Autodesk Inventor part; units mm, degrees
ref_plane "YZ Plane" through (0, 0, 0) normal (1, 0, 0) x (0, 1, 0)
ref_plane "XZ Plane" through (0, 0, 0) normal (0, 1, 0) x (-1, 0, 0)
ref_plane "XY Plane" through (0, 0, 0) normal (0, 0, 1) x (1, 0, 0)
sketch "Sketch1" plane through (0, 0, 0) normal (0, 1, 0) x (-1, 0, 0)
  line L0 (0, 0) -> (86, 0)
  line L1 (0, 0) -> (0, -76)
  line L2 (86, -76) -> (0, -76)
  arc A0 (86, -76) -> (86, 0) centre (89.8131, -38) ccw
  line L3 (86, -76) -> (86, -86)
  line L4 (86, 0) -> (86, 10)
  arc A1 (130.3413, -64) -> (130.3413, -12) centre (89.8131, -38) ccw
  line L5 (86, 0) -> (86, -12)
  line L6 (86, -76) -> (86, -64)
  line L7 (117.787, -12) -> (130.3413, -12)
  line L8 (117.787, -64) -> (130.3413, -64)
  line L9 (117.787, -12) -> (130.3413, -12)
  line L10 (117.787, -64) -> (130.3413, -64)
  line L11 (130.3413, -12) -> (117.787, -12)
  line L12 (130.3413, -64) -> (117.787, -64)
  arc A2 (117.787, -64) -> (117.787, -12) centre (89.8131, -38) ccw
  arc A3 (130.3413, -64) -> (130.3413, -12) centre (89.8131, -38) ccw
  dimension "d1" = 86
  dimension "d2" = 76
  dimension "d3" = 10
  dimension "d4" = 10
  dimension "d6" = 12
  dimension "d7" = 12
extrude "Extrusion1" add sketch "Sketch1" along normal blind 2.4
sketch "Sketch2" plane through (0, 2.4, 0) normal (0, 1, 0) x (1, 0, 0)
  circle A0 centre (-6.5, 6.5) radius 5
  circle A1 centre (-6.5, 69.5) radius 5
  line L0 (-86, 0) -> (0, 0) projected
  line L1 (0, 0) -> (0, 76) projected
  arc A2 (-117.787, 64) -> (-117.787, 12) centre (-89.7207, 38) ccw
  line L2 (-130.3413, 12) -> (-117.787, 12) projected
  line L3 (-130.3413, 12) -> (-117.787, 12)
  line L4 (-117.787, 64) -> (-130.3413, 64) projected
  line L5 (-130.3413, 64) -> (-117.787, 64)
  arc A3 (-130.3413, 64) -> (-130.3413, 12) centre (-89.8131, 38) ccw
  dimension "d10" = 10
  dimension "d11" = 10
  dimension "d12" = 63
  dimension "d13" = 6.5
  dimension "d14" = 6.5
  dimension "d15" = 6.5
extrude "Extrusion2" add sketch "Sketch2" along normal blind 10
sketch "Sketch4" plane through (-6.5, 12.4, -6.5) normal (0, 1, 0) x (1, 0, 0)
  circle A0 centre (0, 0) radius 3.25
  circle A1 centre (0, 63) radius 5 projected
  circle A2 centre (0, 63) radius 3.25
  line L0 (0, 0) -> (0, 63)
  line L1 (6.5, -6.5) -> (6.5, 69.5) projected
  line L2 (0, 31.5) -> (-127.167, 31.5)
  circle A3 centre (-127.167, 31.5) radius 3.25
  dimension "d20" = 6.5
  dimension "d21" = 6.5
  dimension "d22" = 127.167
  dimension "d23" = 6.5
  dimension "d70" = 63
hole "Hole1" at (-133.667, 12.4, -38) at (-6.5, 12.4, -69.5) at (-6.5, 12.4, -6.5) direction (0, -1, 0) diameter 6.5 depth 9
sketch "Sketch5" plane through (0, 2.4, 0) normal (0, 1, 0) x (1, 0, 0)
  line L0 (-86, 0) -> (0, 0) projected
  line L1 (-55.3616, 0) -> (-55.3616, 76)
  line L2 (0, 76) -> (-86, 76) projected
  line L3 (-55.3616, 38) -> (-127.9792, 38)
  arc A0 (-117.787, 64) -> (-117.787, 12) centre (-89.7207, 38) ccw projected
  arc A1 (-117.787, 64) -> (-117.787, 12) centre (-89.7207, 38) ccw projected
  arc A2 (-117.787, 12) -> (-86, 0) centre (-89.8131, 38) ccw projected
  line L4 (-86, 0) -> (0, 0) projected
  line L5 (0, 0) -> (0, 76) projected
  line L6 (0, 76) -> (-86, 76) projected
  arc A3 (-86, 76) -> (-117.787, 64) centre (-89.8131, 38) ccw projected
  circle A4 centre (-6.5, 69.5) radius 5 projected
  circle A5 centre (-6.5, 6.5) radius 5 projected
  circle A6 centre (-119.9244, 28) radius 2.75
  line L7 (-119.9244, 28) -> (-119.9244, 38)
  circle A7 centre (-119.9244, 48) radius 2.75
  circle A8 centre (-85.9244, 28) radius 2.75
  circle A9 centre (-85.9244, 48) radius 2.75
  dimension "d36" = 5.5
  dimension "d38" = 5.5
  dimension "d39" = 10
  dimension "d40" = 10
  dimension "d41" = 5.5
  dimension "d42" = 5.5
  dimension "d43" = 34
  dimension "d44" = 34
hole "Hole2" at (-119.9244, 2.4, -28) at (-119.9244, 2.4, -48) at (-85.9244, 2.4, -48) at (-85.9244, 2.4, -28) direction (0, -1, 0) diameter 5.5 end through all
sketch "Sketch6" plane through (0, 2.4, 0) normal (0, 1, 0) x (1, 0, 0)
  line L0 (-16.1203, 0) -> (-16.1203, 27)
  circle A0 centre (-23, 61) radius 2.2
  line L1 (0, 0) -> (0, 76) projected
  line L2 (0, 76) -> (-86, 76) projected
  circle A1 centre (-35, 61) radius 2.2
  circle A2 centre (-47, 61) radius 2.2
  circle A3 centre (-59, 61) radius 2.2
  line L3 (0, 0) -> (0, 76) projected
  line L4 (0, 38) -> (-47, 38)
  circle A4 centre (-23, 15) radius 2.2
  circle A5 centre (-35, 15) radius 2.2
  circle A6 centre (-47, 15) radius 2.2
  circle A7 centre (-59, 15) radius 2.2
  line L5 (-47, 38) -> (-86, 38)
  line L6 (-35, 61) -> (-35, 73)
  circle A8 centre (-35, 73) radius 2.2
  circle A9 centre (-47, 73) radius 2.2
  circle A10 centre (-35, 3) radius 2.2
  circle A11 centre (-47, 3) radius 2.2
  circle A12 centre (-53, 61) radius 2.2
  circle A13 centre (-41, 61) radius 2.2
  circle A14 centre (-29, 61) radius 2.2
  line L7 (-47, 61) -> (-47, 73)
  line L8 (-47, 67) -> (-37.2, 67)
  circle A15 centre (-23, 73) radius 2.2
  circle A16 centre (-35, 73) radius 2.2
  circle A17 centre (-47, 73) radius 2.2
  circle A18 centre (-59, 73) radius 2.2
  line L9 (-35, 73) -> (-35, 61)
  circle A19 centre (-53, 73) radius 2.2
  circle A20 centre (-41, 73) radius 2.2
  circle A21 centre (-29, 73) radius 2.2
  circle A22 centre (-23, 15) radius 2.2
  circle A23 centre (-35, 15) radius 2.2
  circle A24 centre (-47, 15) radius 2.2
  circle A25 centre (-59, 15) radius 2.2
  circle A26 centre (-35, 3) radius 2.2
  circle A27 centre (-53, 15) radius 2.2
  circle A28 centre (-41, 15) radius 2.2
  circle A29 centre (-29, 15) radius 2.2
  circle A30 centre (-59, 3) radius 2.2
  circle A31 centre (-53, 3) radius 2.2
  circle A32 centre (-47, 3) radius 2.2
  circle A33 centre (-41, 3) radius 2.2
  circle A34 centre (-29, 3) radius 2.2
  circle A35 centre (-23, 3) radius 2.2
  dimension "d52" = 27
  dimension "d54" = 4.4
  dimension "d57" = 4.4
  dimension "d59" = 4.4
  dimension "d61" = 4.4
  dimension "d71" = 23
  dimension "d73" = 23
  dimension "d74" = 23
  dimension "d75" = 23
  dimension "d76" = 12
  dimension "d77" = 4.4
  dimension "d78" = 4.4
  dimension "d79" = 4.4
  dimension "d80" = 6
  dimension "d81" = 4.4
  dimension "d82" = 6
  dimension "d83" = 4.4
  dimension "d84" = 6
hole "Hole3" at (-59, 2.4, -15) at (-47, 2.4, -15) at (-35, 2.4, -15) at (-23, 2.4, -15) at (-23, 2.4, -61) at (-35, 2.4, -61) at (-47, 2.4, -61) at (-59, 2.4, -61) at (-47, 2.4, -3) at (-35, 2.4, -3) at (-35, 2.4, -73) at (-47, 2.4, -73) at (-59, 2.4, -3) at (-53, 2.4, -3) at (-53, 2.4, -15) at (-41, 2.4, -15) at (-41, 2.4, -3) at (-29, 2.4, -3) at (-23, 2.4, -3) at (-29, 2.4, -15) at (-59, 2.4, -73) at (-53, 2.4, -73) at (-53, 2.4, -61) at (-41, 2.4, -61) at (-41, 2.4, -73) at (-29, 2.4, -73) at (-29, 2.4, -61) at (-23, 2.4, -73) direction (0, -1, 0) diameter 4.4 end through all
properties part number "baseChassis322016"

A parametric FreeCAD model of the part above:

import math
import FreeCAD as App
import Part
import Sketcher

V = App.Vector
Q = App.Units.Quantity

doc = App.newDocument("Part")
body = doc.addObject("PartDesign::Body", "Body")

# Sketch on XZ plane
sketch1 = doc.addObject("Sketcher::SketchObject", "Sketch")
body.addObject(sketch1)
sketch1.AttachmentSupport = (doc.XZ_Plane, [""])
sketch1.MapMode = "FlatFace"
sketch1.addGeometry([
    Part.LineSegment(V(-86, 0, 0), V(0, 0, 0)),  # 0
    Part.LineSegment(V(0, 0, 0), V(0, -76, 0)),  # 1
    Part.LineSegment(V(0, -76, 0), V(-86, -76, 0)),  # 2
    Part.ArcOfCircle(Part.Circle(V(-90, -38, 0), V(0, 0, 1), 38), math.radians(-137), math.radians(-84)),  # 3
    Part.LineSegment(V(-118, -64, 0), V(-130, -64, 0)),  # 4
    Part.ArcOfCircle(Part.Circle(V(-90, -38, 0), V(0, 0, 1), 48), math.radians(147), math.radians(213)),  # 5
    Part.LineSegment(V(-130, -12, 0), V(-118, -12, 0)),  # 6
    Part.ArcOfCircle(Part.Circle(V(-90, -38, 0), V(0, 0, 1), 38), math.radians(84), math.radians(137)),  # 7
], False)
sketch1.addConstraint([
    Sketcher.Constraint("Coincident", 0, 2, 1, 1),
    Sketcher.Constraint("Coincident", 1, 2, 2, 1),
    Sketcher.Constraint("Coincident", 2, 2, 3, 2),
    Sketcher.Constraint("Coincident", 3, 1, 4, 1),
    Sketcher.Constraint("Coincident", 4, 2, 5, 2),
    Sketcher.Constraint("Coincident", 5, 1, 6, 1),
    Sketcher.Constraint("Coincident", 6, 2, 7, 2),
    Sketcher.Constraint("Coincident", 7, 1, 0, 1),
    Sketcher.Constraint("Horizontal", 0),
    Sketcher.Constraint("Vertical", 1),
    Sketcher.Constraint("Horizontal", 2),
    Sketcher.Constraint("Horizontal", 4),
    Sketcher.Constraint("Horizontal", 6),
    Sketcher.Constraint("Coincident", 0, 2, -1, 1),
    Sketcher.Constraint("Coincident", 5, 3, 3, 3),
    Sketcher.Constraint("Coincident", 7, 3, 3, 3),
    Sketcher.Constraint("Equal", 3, 7),
    Sketcher.Constraint("Vertical", 4, 2, 5, 1),
    Sketcher.Constraint("Vertical", 2, 2, 7, 1),
    Sketcher.Constraint("DistanceX", 0, 1, 0, 2, Q("86 mm")),
    Sketcher.Constraint("DistanceY", 1, 2, 1, 1, Q("76 mm")),
    Sketcher.Constraint("DistanceY", 5, 1, -1, 1, Q("12 mm")),
    Sketcher.Constraint("Radius", 3, Q("38.1908 mm")),
    Sketcher.Constraint("Radius", 5, Q("48.1512 mm")),
])
pad1 = doc.addObject("PartDesign::Pad", "Pad")
body.addObject(pad1)
pad1.Profile = sketch1
pad1.Length = 2.4
pad1.Reversed = True

# Sketch on XZ plane
sketch2 = doc.addObject("Sketcher::SketchObject", "Sketch001")
body.addObject(sketch2)
sketch2.AttachmentSupport = (doc.XZ_Plane, [""])
sketch2.MapMode = "FlatFace"
sketch2.AttachmentOffset = App.Placement(V(0, 0, -2.4), App.Rotation())
sketch2.addGeometry([
    Part.Circle(V(-6, -6, 0), V(0, 0, 1), 5),  # 0
    Part.Circle(V(-6, -70, 0), V(0, 0, 1), 5),  # 1
    Part.ArcOfCircle(Part.Circle(V(-90, -38, 0), V(0, 0, 1), 38), math.radians(137), math.radians(223)),  # 2
    Part.LineSegment(V(-118, -64, 0), V(-130, -64, 0)),  # 3
    Part.ArcOfCircle(Part.Circle(V(-90, -38, 0), V(0, 0, 1), 48), math.radians(147), math.radians(213)),  # 4
    Part.LineSegment(V(-130, -12, 0), V(-118, -12, 0)),  # 5
], False)
sketch2.addConstraint([
    Sketcher.Constraint("Coincident", 2, 2, 3, 1),
    Sketcher.Constraint("Coincident", 3, 2, 4, 2),
    Sketcher.Constraint("Coincident", 4, 1, 5, 1),
    Sketcher.Constraint("Coincident", 5, 2, 2, 1),
    Sketcher.Constraint("Horizontal", 3),
    Sketcher.Constraint("Horizontal", 5),
    Sketcher.Constraint("Equal", 0, 1),
    Sketcher.Constraint("Horizontal", 2, 3, 4, 3),
    Sketcher.Constraint("Vertical", 0, 3, 1, 3),
    Sketcher.Constraint("Vertical", 3, 2, 4, 1),
    Sketcher.Constraint("Diameter", 0, Q("10 mm")),
    Sketcher.Constraint("DistanceY", 1, 3, 0, 3, Q("63 mm")),
    Sketcher.Constraint("DistanceX", 0, 3, -1, 1, Q("6.5 mm")),
    Sketcher.Constraint("DistanceY", 0, 3, -1, 1, Q("6.5 mm")),
    Sketcher.Constraint("DistanceY", 2, 3, -1, 1, Q("38 mm")),
    Sketcher.Constraint("DistanceY", 2, 2, -1, 1, Q("64 mm")),
    Sketcher.Constraint("Radius", 2, Q("38.2586 mm")),
    Sketcher.Constraint("Radius", 4, Q("48.1512 mm")),
    Sketcher.Constraint("DistanceX", 3, 2, 3, 1, Q("12.5543 mm")),
    Sketcher.Constraint("DistanceX", 4, 3, -1, 1, Q("89.813 mm")),
])
pad2 = doc.addObject("PartDesign::Pad", "Pad001")
body.addObject(pad2)
pad2.Profile = sketch2
pad2.Length = 10
pad2.Reversed = True

# Sketch on XZ plane
sketch3 = doc.addObject("Sketcher::SketchObject", "Sketch002")
body.addObject(sketch3)
sketch3.AttachmentSupport = (doc.XZ_Plane, [""])
sketch3.MapMode = "FlatFace"
sketch3.AttachmentOffset = App.Placement(V(0, 0, -12.4), App.Rotation())
sketch3.addGeometry([
    Part.Circle(V(-133.7, -38, 0), V(0, 0, 1), 3.2),
    Part.Circle(V(-6.5, -69.5, 0), V(0, 0, 1), 3.2),
    Part.Circle(V(-6.5, -6.5, 0), V(0, 0, 1), 3.2),
], False)
sketch3.addConstraint([
    Sketcher.Constraint("Equal", 0, 1),
    Sketcher.Constraint("Equal", 1, 2),
    Sketcher.Constraint("Vertical", 1, 3, 2, 3),
    Sketcher.Constraint("Diameter", 0, Q("6.5 mm")),
    Sketcher.Constraint("DistanceY", 0, 3, -1, 1, Q("38 mm")),
    Sketcher.Constraint("DistanceY", 1, 3, 2, 3, Q("63 mm")),
    Sketcher.Constraint("DistanceX", 1, 3, -1, 1, Q("6.5 mm")),
    Sketcher.Constraint("DistanceY", 1, 3, -1, 1, Q("69.5 mm")),
    Sketcher.Constraint("DistanceX", 0, 3, -1, 1, Q("133.667 mm")),
])
doc.recompute()
hole = doc.addObject("PartDesign::Hole", "Hole")
body.addObject(hole)
hole.Profile = sketch3
hole.ThreadType = "None"
hole.Diameter = 6.5
hole.DepthType = "Dimension"
hole.Depth = 9
hole.DrillPoint = "Flat"
hole.Reversed = True

# Sketch on XZ plane
sketch4 = doc.addObject("Sketcher::SketchObject", "Sketch003")
body.addObject(sketch4)
sketch4.AttachmentSupport = (doc.XZ_Plane, [""])
sketch4.MapMode = "FlatFace"
sketch4.AttachmentOffset = App.Placement(V(0, 0, -2.4), App.Rotation())
sketch4.addGeometry([
    Part.Circle(V(-119.9, -28, 0), V(0, 0, 1), 2.8),
    Part.Circle(V(-119.9, -48, 0), V(0, 0, 1), 2.8),
    Part.Circle(V(-85.9, -48, 0), V(0, 0, 1), 2.8),
    Part.Circle(V(-85.9, -28, 0), V(0, 0, 1), 2.8),
], False)
sketch4.addConstraint([
    Sketcher.Constraint("Equal", 0, 1),
    Sketcher.Constraint("Equal", 1, 2),
    Sketcher.Constraint("Equal", 2, 3),
    Sketcher.Constraint("Horizontal", 1, 3, 2, 3),
    Sketcher.Constraint("Horizontal", 0, 3, 3, 3),
    Sketcher.Constraint("Vertical", 0, 3, 1, 3),
    Sketcher.Constraint("Vertical", 2, 3, 3, 3),
    Sketcher.Constraint("Diameter", 0, Q("5.5 mm")),
    Sketcher.Constraint("DistanceY", 0, 3, -1, 1, Q("28 mm")),
    Sketcher.Constraint("DistanceY", 1, 3, -1, 1, Q("48 mm")),
    Sketcher.Constraint("DistanceX", 1, 3, 2, 3, Q("34 mm")),
    Sketcher.Constraint("DistanceX", 0, 3, -1, 1, Q("119.9244 mm")),
])
doc.recompute()
hole2 = doc.addObject("PartDesign::Hole", "Hole001")
body.addObject(hole2)
hole2.Profile = sketch4
hole2.ThreadType = "None"
hole2.Diameter = 5.5
hole2.DepthType = "ThroughAll"
hole2.Reversed = True

# Sketch on XZ plane
sketch5 = doc.addObject("Sketcher::SketchObject", "Sketch004")
body.addObject(sketch5)
sketch5.AttachmentSupport = (doc.XZ_Plane, [""])
sketch5.MapMode = "FlatFace"
sketch5.AttachmentOffset = App.Placement(V(0, 0, -2.4), App.Rotation())
sketch5.addGeometry([
    Part.Circle(V(-59, -15, 0), V(0, 0, 1), 2.2),  # 0
    Part.Circle(V(-47, -15, 0), V(0, 0, 1), 2.2),  # 1
    Part.Circle(V(-35, -15, 0), V(0, 0, 1), 2.2),  # 2
    Part.Circle(V(-23, -15, 0), V(0, 0, 1), 2.2),  # 3
    Part.Circle(V(-23, -61, 0), V(0, 0, 1), 2.2),  # 4
    Part.Circle(V(-35, -61, 0), V(0, 0, 1), 2.2),  # 5
    Part.Circle(V(-47, -61, 0), V(0, 0, 1), 2.2),  # 6
    Part.Circle(V(-59, -61, 0), V(0, 0, 1), 2.2),  # 7
    Part.Circle(V(-47, -3, 0), V(0, 0, 1), 2.2),  # 8
    Part.Circle(V(-35, -3, 0), V(0, 0, 1), 2.2),  # 9
    Part.Circle(V(-35, -73, 0), V(0, 0, 1), 2.2),  # 10
    Part.Circle(V(-47, -73, 0), V(0, 0, 1), 2.2),  # 11
    Part.Circle(V(-59, -3, 0), V(0, 0, 1), 2.2),  # 12
    Part.Circle(V(-53, -3, 0), V(0, 0, 1), 2.2),  # 13
    Part.Circle(V(-53, -15, 0), V(0, 0, 1), 2.2),  # 14
    Part.Circle(V(-41, -15, 0), V(0, 0, 1), 2.2),  # 15
    Part.Circle(V(-41, -3, 0), V(0, 0, 1), 2.2),  # 16
    Part.Circle(V(-29, -3, 0), V(0, 0, 1), 2.2),  # 17
    Part.Circle(V(-23, -3, 0), V(0, 0, 1), 2.2),  # 18
    Part.Circle(V(-29, -15, 0), V(0, 0, 1), 2.2),  # 19
    Part.Circle(V(-59, -73, 0), V(0, 0, 1), 2.2),  # 20
    Part.Circle(V(-53, -73, 0), V(0, 0, 1), 2.2),  # 21
    Part.Circle(V(-53, -61, 0), V(0, 0, 1), 2.2),  # 22
    Part.Circle(V(-41, -61, 0), V(0, 0, 1), 2.2),  # 23
    Part.Circle(V(-41, -73, 0), V(0, 0, 1), 2.2),  # 24
    Part.Circle(V(-29, -73, 0), V(0, 0, 1), 2.2),  # 25
    Part.Circle(V(-29, -61, 0), V(0, 0, 1), 2.2),  # 26
    Part.Circle(V(-23, -73, 0), V(0, 0, 1), 2.2),  # 27
], False)
sketch5.addConstraint([
    Sketcher.Constraint("Equal", 0, 1),
    Sketcher.Constraint("Equal", 1, 2),
    Sketcher.Constraint("Equal", 2, 3),
    Sketcher.Constraint("Equal", 3, 4),
    Sketcher.Constraint("Equal", 4, 5),
    Sketcher.Constraint("Equal", 5, 6),
    Sketcher.Constraint("Equal", 6, 7),
    Sketcher.Constraint("Equal", 7, 8),
    Sketcher.Constraint("Equal", 8, 9),
    Sketcher.Constraint("Equal", 9, 10),
    Sketcher.Constraint("Equal", 10, 11),
    Sketcher.Constraint("Equal", 11, 12),
    Sketcher.Constraint("Equal", 12, 13),
    Sketcher.Constraint("Equal", 13, 14),
    Sketcher.Constraint("Equal", 14, 15),
    Sketcher.Constraint("Equal", 15, 16),
    Sketcher.Constraint("Equal", 16, 17),
    Sketcher.Constraint("Equal", 17, 18),
    Sketcher.Constraint("Equal", 18, 19),
    Sketcher.Constraint("Equal", 19, 20),
    Sketcher.Constraint("Equal", 20, 21),
    Sketcher.Constraint("Equal", 21, 22),
    Sketcher.Constraint("Equal", 22, 23),
    Sketcher.Constraint("Equal", 23, 24),
    Sketcher.Constraint("Equal", 24, 25),
    Sketcher.Constraint("Equal", 25, 26),
    Sketcher.Constraint("Equal", 26, 27),
    Sketcher.Constraint("Horizontal", 0, 3, 1, 3),
    Sketcher.Constraint("Horizontal", 1, 3, 2, 3),
    Sketcher.Constraint("Horizontal", 2, 3, 3, 3),
    Sketcher.Constraint("Horizontal", 4, 3, 5, 3),
    Sketcher.Constraint("Horizontal", 5, 3, 6, 3),
    Sketcher.Constraint("Horizontal", 6, 3, 7, 3),
    Sketcher.Constraint("Horizontal", 8, 3, 9, 3),
    Sketcher.Constraint("Horizontal", 10, 3, 11, 3),
    Sketcher.Constraint("Horizontal", 9, 3, 12, 3),
    Sketcher.Constraint("Horizontal", 12, 3, 13, 3),
    Sketcher.Constraint("Horizontal", 3, 3, 14, 3),
    Sketcher.Constraint("Horizontal", 14, 3, 15, 3),
    Sketcher.Constraint("Horizontal", 13, 3, 16, 3),
    Sketcher.Constraint("Horizontal", 16, 3, 17, 3),
    Sketcher.Constraint("Horizontal", 17, 3, 18, 3),
    Sketcher.Constraint("Horizontal", 15, 3, 19, 3),
    Sketcher.Constraint("Horizontal", 11, 3, 20, 3),
    Sketcher.Constraint("Horizontal", 20, 3, 21, 3),
    Sketcher.Constraint("Horizontal", 7, 3, 22, 3),
    Sketcher.Constraint("Horizontal", 22, 3, 23, 3),
    Sketcher.Constraint("Horizontal", 21, 3, 24, 3),
    Sketcher.Constraint("Horizontal", 24, 3, 25, 3),
    Sketcher.Constraint("Horizontal", 23, 3, 26, 3),
    Sketcher.Constraint("Horizontal", 25, 3, 27, 3),
    Sketcher.Constraint("Vertical", 3, 3, 4, 3),
    Sketcher.Constraint("Vertical", 2, 3, 5, 3),
    Sketcher.Constraint("Vertical", 1, 3, 6, 3),
    Sketcher.Constraint("Vertical", 0, 3, 7, 3),
    Sketcher.Constraint("Vertical", 6, 3, 8, 3),
    Sketcher.Constraint("Vertical", 5, 3, 9, 3),
    Sketcher.Constraint("Vertical", 9, 3, 10, 3),
    Sketcher.Constraint("Vertical", 8, 3, 11, 3),
    Sketcher.Constraint("Vertical", 7, 3, 12, 3),
    Sketcher.Constraint("Vertical", 13, 3, 14, 3),
    Sketcher.Constraint("Vertical", 15, 3, 16, 3),
    Sketcher.Constraint("Vertical", 4, 3, 18, 3),
    Sketcher.Constraint("Vertical", 17, 3, 19, 3),
    Sketcher.Constraint("Vertical", 12, 3, 20, 3),
    Sketcher.Constraint("Vertical", 14, 3, 21, 3),
    Sketcher.Constraint("Vertical", 21, 3, 22, 3),
    Sketcher.Constraint("Vertical", 16, 3, 23, 3),
    Sketcher.Constraint("Vertical", 23, 3, 24, 3),
    Sketcher.Constraint("Vertical", 19, 3, 25, 3),
    Sketcher.Constraint("Vertical", 25, 3, 26, 3),
    Sketcher.Constraint("Vertical", 18, 3, 27, 3),
    Sketcher.Constraint("Diameter", 0, Q("4.4 mm")),
    Sketcher.Constraint("DistanceX", 0, 3, -1, 1, Q("59 mm")),
    Sketcher.Constraint("DistanceY", 0, 3, -1, 1, Q("15 mm")),
    Sketcher.Constraint("DistanceX", 1, 3, -1, 1, Q("47 mm")),
    Sketcher.Constraint("DistanceX", 2, 3, -1, 1, Q("35 mm")),
    Sketcher.Constraint("DistanceX", 3, 3, -1, 1, Q("23 mm")),
    Sketcher.Constraint("DistanceY", 4, 3, -1, 1, Q("61 mm")),
    Sketcher.Constraint("DistanceY", 8, 3, -1, 1, Q("3 mm")),
    Sketcher.Constraint("DistanceY", 10, 3, -1, 1, Q("73 mm")),
    Sketcher.Constraint("DistanceX", 13, 3, -1, 1, Q("53 mm")),
    Sketcher.Constraint("DistanceX", 15, 3, -1, 1, Q("41 mm")),
    Sketcher.Constraint("DistanceX", 17, 3, -1, 1, Q("29 mm")),
])
doc.recompute()
hole3 = doc.addObject("PartDesign::Hole", "Hole002")
body.addObject(hole3)
hole3.Profile = sketch5
hole3.ThreadType = "None"
hole3.Diameter = 4.4
hole3.DepthType = "ThroughAll"
hole3.Reversed = True

doc.recompute()
